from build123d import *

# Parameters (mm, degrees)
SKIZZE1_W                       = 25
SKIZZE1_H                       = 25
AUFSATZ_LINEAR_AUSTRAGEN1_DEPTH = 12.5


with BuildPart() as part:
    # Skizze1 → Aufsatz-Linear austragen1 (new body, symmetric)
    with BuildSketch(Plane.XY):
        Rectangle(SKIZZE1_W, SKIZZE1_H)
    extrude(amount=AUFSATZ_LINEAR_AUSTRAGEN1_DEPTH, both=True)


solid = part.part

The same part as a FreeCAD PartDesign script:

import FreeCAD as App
import Part
import Sketcher
Q = App.Units.Quantity


def add_polygon(sketch, points):
    """Adds a closed chain of lines whose ends are joined by coincident constraints."""
    first, n = sketch.GeometryCount, len(points)
    for a, b in zip(points, points[1:] + points[:1]):
        sketch.addGeometry(Part.LineSegment(App.Vector(*a, 0), App.Vector(*b, 0)), False)
    for i in range(n):
        sketch.addConstraint(Sketcher.Constraint("Coincident", first + i, 2, first + (i + 1) % n, 1))

doc = App.newDocument("Part")
body = doc.addObject("PartDesign::Body", "Body")

# Sketch on XY plane
sketch1 = body.newObject("Sketcher::SketchObject", "Sketch")
sketch1.AttachmentSupport = (doc.getObject("XY_Plane"), [""])
sketch1.MapMode = "FlatFace"
add_polygon(sketch1, [(-12.5, 12.5), (-12.5, -12.5), (12.5, -12.5), (12.5, 12.5)])  # lines 0-3
sketch1.addConstraint([
    Sketcher.Constraint("Vertical", 0),
    Sketcher.Constraint("Horizontal", 1),
    Sketcher.Constraint("Vertical", 2),
    Sketcher.Constraint("Horizontal", 3),
    Sketcher.Constraint("Symmetric", 0, 2, 2, 2, -1, 1),
    Sketcher.Constraint("Equal", 3, 0),
    Sketcher.Constraint("DistanceX", 1, 1, 1, 2, Q("25 mm")),
])
pad1 = body.newObject("PartDesign::Pad", "Pad")
pad1.Profile = sketch1
pad1.Length = 25
pad1.Midplane = True

doc.recompute()
